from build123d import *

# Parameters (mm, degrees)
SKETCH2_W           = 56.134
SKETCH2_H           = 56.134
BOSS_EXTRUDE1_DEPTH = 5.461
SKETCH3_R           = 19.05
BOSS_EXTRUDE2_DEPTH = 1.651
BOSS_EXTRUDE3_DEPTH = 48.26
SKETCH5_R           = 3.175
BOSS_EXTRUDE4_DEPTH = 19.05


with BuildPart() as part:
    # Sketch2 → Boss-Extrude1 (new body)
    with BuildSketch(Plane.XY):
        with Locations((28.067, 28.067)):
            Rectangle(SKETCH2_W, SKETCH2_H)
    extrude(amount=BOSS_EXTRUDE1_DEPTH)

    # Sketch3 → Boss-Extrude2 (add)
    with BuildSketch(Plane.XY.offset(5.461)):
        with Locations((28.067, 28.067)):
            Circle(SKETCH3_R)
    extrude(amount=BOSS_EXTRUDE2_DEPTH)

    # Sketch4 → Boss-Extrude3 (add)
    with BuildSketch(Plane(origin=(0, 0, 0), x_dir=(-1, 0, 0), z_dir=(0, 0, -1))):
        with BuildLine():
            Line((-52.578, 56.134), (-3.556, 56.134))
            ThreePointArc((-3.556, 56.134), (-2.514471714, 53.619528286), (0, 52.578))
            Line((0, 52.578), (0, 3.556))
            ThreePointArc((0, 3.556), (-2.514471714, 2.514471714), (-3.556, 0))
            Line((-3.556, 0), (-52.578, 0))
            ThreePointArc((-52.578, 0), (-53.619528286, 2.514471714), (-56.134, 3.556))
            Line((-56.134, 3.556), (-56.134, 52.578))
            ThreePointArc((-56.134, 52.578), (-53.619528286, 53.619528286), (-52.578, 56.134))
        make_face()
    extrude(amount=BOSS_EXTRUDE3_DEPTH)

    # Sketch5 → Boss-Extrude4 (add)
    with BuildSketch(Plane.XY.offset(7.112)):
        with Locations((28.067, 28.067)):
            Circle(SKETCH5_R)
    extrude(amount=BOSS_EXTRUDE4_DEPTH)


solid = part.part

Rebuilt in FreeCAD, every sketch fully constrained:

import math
import FreeCAD as App
import Part
import Sketcher

V = App.Vector
Q = App.Units.Quantity


def add_polygon(sketch, points):
    """Adds a closed chain of lines whose ends are joined by coincident constraints."""
    first, n = sketch.GeometryCount, len(points)
    for a, b in zip(points, points[1:] + points[:1]):
        sketch.addGeometry(Part.LineSegment(App.Vector(*a, 0), App.Vector(*b, 0)), False)
    for i in range(n):
        sketch.addConstraint(Sketcher.Constraint("Coincident", first + i, 2, first + (i + 1) % n, 1))

doc = App.newDocument("Part")
body = doc.addObject("PartDesign::Body", "Body")

sketch1 = doc.addObject("Sketcher::SketchObject", "Sketch")
body.addObject(sketch1)
sketch1.AttachmentSupport = (doc.XY_Plane, [""])
sketch1.MapMode = "FlatFace"
add_polygon(sketch1, [(0, 56.134), (0, 0), (56.134, 0), (56.134, 56.134)])
sketch1.addConstraint(Sketcher.Constraint("Vertical", 0))
sketch1.addConstraint(Sketcher.Constraint("Horizontal", 1))
sketch1.addConstraint(Sketcher.Constraint("Vertical", 2))
sketch1.addConstraint(Sketcher.Constraint("Horizontal", 3))
sketch1.addConstraint(Sketcher.Constraint("Coincident", 0, 2, -1, 1))
sketch1.addConstraint(Sketcher.Constraint("Equal", 3, 0))
sketch1.addConstraint(Sketcher.Constraint("DistanceX", 1, 1, 1, 2, Q("2.21 in")))
pad1 = doc.addObject("PartDesign::Pad", "Pad")
body.addObject(pad1)
pad1.Profile = sketch1
pad1.Length = Q("0.215 in")

sketch2 = doc.addObject("Sketcher::SketchObject", "Sketch001")
body.addObject(sketch2)
sketch2.AttachmentSupport = (doc.XY_Plane, [""])
sketch2.MapMode = "FlatFace"
sketch2.AttachmentOffset = App.Placement(V(0, 0, 0.215 * 25.4), App.Rotation())
sketch2.addGeometry(Part.Circle(V(28.067, 28.067, 0), V(0, 0, 1), 19.05), False)
sketch2.addConstraint(Sketcher.Constraint("Diameter", 0, Q("1.5 in")))
sketch2.addConstraint(Sketcher.Constraint("DistanceX", -1, 1, 0, 3, Q("1.105 in")))
sketch2.addConstraint(Sketcher.Constraint("DistanceY", -1, 1, 0, 3, Q("1.105 in")))
pad2 = doc.addObject("PartDesign::Pad", "Pad001")
body.addObject(pad2)
pad2.Profile = sketch2
pad2.Length = Q("0.065 in")

sketch3 = doc.addObject("Sketcher::SketchObject", "Sketch002")
body.addObject(sketch3)
sketch3.AttachmentSupport = (doc.XY_Plane, [""])
sketch3.MapMode = "FlatFace"
sketch3.addGeometry(Part.LineSegment(V(3.556, 56.134, 0), V(52.578, 56.134, 0)), False)
sketch3.addGeometry(Part.ArcOfCircle(Part.Circle(V(56.134, 56.134, 0), V(0, 0, 1), 3.556), math.radians(180), math.radians(270)), False)
sketch3.addGeometry(Part.LineSegment(V(56.134, 52.578, 0), V(56.134, 3.556, 0)), False)
sketch3.addGeometry(Part.ArcOfCircle(Part.Circle(V(56.134, 0, 0), V(0, 0, 1), 3.556), math.radians(90), math.radians(180)), False)
sketch3.addGeometry(Part.LineSegment(V(52.578, 0, 0), V(3.556, 0, 0)), False)
sketch3.addGeometry(Part.ArcOfCircle(Part.Circle(V(0, 0, 0), V(0, 0, 1), 3.556), math.radians(0), math.radians(90)), False)
sketch3.addGeometry(Part.LineSegment(V(0, 3.556, 0), V(0, 52.578, 0)), False)
sketch3.addGeometry(Part.ArcOfCircle(Part.Circle(V(0, 56.134, 0), V(0, 0, 1), 3.556), math.radians(-90), math.radians(0)), False)
sketch3.addConstraint(Sketcher.Constraint("Coincident", 0, 2, 1, 1))
sketch3.addConstraint(Sketcher.Constraint("Coincident", 1, 2, 2, 1))
sketch3.addConstraint(Sketcher.Constraint("Coincident", 2, 2, 3, 1))
sketch3.addConstraint(Sketcher.Constraint("Coincident", 3, 2, 4, 1))
sketch3.addConstraint(Sketcher.Constraint("Coincident", 4, 2, 5, 1))
sketch3.addConstraint(Sketcher.Constraint("Coincident", 5, 2, 6, 1))
sketch3.addConstraint(Sketcher.Constraint("Coincident", 6, 2, 7, 1))
sketch3.addConstraint(Sketcher.Constraint("Coincident", 7, 2, 0, 1))
sketch3.addConstraint(Sketcher.Constraint("Horizontal", 0))
sketch3.addConstraint(Sketcher.Constraint("Vertical", 2))
sketch3.addConstraint(Sketcher.Constraint("Horizontal", 4))
sketch3.addConstraint(Sketcher.Constraint("Vertical", 6))
sketch3.addConstraint(Sketcher.Constraint("Coincident", 5, 3, -1, 1))
sketch3.addConstraint(Sketcher.Constraint("Equal", 1, 3))
sketch3.addConstraint(Sketcher.Constraint("Equal", 3, 5))
sketch3.addConstraint(Sketcher.Constraint("Equal", 5, 7))
sketch3.addConstraint(Sketcher.Constraint("PointOnObject", 3, 3, -1))
sketch3.addConstraint(Sketcher.Constraint("PointOnObject", 7, 3, -2))
sketch3.addConstraint(Sketcher.Constraint("PointOnObject", 3, 2, -1))
sketch3.addConstraint(Sketcher.Constraint("PointOnObject", 5, 2, -2))
sketch3.addConstraint(Sketcher.Constraint("Horizontal", 1, 3, 7, 3))
sketch3.addConstraint(Sketcher.Constraint("Horizontal", 7, 3, 0, 2))
sketch3.addConstraint(Sketcher.Constraint("Vertical", 1, 3, 3, 3))
sketch3.addConstraint(Sketcher.Constraint("Vertical", 3, 3, 1, 2))
sketch3.addConstraint(Sketcher.Constraint("Equal", 4, 2))
sketch3.addConstraint(Sketcher.Constraint("Radius", 1, Q("0.14 in")))
sketch3.addConstraint(Sketcher.Constraint("DistanceX", 0, 1, 0, 2, Q("1.93 in")))
pad3 = doc.addObject("PartDesign::Pad", "Pad002")
body.addObject(pad3)
pad3.Profile = sketch3
pad3.Length = Q("1.9 in")
pad3.Reversed = True

sketch4 = doc.addObject("Sketcher::SketchObject", "Sketch003")
body.addObject(sketch4)
sketch4.AttachmentSupport = (doc.XY_Plane, [""])
sketch4.MapMode = "FlatFace"
sketch4.AttachmentOffset = App.Placement(V(0, 0, 0.28 * 25.4), App.Rotation())
sketch4.addGeometry(Part.Circle(V(28.067, 28.067, 0), V(0, 0, 1), 3.175), False)
sketch4.addConstraint(Sketcher.Constraint("Diameter", 0, Q("0.25 in")))
sketch4.addConstraint(Sketcher.Constraint("DistanceX", -1, 1, 0, 3, Q("1.105 in")))
sketch4.addConstraint(Sketcher.Constraint("DistanceY", -1, 1, 0, 3, Q("1.105 in")))
pad4 = doc.addObject("PartDesign::Pad", "Pad003")
body.addObject(pad4)
pad4.Profile = sketch4
pad4.Length = Q("0.75 in")

doc.recompute()
